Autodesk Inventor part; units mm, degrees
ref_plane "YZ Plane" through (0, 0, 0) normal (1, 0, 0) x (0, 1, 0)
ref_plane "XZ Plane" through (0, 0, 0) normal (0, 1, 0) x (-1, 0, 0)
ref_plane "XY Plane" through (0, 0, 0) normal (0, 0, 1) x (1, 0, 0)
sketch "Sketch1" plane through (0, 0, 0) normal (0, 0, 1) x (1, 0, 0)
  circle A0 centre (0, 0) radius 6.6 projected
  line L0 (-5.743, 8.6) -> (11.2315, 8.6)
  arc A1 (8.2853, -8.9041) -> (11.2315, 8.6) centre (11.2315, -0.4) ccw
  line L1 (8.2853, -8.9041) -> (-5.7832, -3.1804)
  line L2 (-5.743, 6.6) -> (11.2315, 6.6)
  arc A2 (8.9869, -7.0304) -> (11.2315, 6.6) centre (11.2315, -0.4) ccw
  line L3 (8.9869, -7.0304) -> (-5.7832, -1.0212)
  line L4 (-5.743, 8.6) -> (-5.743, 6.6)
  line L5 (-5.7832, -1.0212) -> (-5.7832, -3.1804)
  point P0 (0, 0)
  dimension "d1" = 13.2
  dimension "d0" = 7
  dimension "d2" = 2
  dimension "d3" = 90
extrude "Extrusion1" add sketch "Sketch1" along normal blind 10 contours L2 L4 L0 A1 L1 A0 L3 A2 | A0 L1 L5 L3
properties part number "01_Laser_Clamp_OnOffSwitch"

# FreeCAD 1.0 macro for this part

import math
import FreeCAD as App
import Part
import Sketcher

V = App.Vector
Q = App.Units.Quantity

doc = App.newDocument("Part")
body = doc.addObject("PartDesign::Body", "Body")

sketch1 = body.newObject("Sketcher::SketchObject", "Sketch")
sketch1.AttachmentSupport = (doc.getObject("XY_Plane"), [""])
sketch1.MapMode = "FlatFace"
sketch1.addGeometry([
    Part.LineSegment(V(-5.7, 6.6, 0), V(11.2, 6.6, 0)),
    Part.ArcOfCircle(Part.Circle(V(11.2, -0.4, 0), V(0, 0, 1), 7), math.radians(-109), math.radians(90)),
    Part.LineSegment(V(9, -7, 0), V(-5.8, -1, 0)),
    Part.LineSegment(V(-5.8, -1, 0), V(-5.8, -3.2, 0)),
    Part.LineSegment(V(-5.8, -3.2, 0), V(8.3, -8.9, 0)),
    Part.ArcOfCircle(Part.Circle(V(11.2, -0.4, 0), V(0, 0, 1), 9), math.radians(-109), math.radians(90)),
    Part.LineSegment(V(11.2, 8.6, 0), V(-5.7, 8.6, 0)),
    Part.LineSegment(V(-5.7, 8.6, 0), V(-5.7, 6.6, 0)),
], False)
sketch1.addConstraint([
    Sketcher.Constraint("Tangent", 0, 2, 1, 2),
    Sketcher.Constraint("Coincident", 1, 1, 2, 1),
    Sketcher.Constraint("Coincident", 2, 2, 3, 1),
    Sketcher.Constraint("Coincident", 3, 2, 4, 1),
    Sketcher.Constraint("Coincident", 4, 2, 5, 1),
    Sketcher.Constraint("Tangent", 5, 2, 6, 1),
    Sketcher.Constraint("Coincident", 6, 2, 7, 1),
    Sketcher.Constraint("Coincident", 7, 2, 0, 1),
    Sketcher.Constraint("Horizontal", 0),
    Sketcher.Constraint("Vertical", 3),
    Sketcher.Constraint("Horizontal", 6),
    Sketcher.Constraint("Vertical", 7),
    Sketcher.Constraint("Coincident", 5, 3, 1, 3),
    Sketcher.Constraint("Parallel", 2, 4),
    Sketcher.Constraint("Radius", 1, 7.0),
    Sketcher.Constraint("DistanceY", 7, 2, 7, 1, 2.0),
    Sketcher.Constraint("DistanceY", 1, 3, -1, 1, 0.4),
    Sketcher.Constraint("Angle", 2, Q("157.861 deg")),
    Sketcher.Constraint("DistanceX", 2, 2, 1, 1, 14.77),
    Sketcher.Constraint("DistanceY", 1, 1, 3, 2, 3.85),
    Sketcher.Constraint("DistanceX", 0, 1, 0, 2, 16.9745),
    Sketcher.Constraint("DistanceX", -1, 1, 1, 1, 8.987),
    Sketcher.Constraint("DistanceY", 4, 2, -1, 1, 8.904),
])
pad1 = body.newObject("PartDesign::Pad", "Pad")
pad1.Profile = sketch1
pad1.Length = 10

doc.recompute()
